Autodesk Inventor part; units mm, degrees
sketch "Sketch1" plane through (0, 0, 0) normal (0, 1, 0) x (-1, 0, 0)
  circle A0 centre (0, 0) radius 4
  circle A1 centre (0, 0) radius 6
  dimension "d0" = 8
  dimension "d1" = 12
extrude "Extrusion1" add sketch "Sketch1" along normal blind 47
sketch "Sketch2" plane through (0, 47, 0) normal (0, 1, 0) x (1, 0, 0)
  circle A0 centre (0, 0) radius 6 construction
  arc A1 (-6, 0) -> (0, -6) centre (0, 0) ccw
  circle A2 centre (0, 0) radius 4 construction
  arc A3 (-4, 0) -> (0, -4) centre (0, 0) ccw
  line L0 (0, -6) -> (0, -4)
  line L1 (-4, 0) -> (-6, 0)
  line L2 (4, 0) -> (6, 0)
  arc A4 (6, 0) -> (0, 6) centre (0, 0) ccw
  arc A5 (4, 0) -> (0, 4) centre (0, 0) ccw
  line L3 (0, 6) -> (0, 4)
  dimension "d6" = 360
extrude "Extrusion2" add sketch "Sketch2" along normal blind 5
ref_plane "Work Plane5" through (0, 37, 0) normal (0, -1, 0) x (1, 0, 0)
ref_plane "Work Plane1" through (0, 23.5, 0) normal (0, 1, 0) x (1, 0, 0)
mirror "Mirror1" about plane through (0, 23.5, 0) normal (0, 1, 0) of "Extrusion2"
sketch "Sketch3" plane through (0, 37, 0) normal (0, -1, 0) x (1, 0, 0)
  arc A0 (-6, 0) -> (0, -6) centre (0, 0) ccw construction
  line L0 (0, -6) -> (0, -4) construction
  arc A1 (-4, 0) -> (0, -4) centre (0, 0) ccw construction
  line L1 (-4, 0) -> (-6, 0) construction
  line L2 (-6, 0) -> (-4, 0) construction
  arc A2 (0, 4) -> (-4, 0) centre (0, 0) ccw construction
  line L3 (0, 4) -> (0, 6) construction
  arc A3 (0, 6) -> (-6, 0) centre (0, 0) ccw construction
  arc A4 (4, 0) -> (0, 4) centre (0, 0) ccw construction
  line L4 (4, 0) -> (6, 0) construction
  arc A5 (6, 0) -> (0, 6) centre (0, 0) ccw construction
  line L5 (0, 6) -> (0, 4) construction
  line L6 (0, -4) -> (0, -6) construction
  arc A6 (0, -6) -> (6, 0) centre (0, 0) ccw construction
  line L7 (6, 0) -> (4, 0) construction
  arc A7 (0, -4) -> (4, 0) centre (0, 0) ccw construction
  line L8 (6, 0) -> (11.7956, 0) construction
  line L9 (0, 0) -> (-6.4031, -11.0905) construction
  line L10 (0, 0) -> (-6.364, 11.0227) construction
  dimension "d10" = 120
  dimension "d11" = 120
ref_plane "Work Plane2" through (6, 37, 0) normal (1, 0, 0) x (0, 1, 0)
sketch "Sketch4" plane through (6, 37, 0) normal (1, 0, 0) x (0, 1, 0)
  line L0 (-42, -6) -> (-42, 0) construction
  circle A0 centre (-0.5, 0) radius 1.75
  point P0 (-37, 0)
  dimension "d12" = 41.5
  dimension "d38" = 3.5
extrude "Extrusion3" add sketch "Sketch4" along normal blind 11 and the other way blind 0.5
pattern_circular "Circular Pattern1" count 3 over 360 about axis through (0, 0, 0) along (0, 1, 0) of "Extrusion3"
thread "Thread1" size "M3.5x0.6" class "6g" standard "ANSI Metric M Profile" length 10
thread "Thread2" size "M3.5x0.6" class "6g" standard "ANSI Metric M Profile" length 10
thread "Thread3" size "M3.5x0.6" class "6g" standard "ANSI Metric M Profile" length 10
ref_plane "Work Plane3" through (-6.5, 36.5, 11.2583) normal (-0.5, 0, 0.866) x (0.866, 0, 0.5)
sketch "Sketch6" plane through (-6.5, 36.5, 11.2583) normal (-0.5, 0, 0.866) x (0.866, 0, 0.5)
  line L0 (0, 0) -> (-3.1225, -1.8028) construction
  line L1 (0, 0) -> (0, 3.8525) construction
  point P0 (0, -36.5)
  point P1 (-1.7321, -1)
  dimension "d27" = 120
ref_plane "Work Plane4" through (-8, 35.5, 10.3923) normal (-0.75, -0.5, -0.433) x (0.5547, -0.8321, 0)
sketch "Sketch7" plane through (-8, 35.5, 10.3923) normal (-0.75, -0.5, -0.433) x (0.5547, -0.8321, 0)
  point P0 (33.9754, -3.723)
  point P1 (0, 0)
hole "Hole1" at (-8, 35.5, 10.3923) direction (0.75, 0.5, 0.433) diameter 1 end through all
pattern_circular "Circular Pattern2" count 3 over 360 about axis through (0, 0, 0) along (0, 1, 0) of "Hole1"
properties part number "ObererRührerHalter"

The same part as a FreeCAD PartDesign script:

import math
import FreeCAD as App
import Part
import Sketcher

doc = App.newDocument("Part")
params = doc.addObject("Spreadsheet::Sheet", "Params")
for row, (alias, value) in enumerate([
    ("sketch1_diameter", "12 mm"),
    ("sketch1_diameter2", "8 mm"),
    ("pad1_length", "47 mm"),
    ("sketch2_radius", "6 mm"),
    ("sketch2_radius2", "4 mm"),
    ("pad2_length", "5 mm"),
    ("sketch3_diameter", "3.5 mm"),
    ("pad3_length", "11 mm"),
    ("pad3_length2", "0.5 mm"),
    ("sketch4_diameter", "1 mm"),
    ("hole_diameter", "1 mm"),
], start=1):
    params.set(f"A{row}", alias)
    params.set(f"B{row}", "=" + value)
    params.setAlias(f"B{row}", alias)

body = doc.addObject("PartDesign::Body", "Body")

sketch1 = body.newObject("Sketcher::SketchObject", "Sketch")
sketch1.AttachmentSupport = (doc.getObject("XZ_Plane"), [""])
sketch1.MapMode = "FlatFace"
sketch1.addGeometry([
    Part.Circle(App.Vector(0, 0, 0), App.Vector(0, 0, 1), 6),
    Part.Circle(App.Vector(0, 0, 0), App.Vector(0, 0, 1), 4),
], False)
sketch1.addConstraint([
    Sketcher.Constraint("Coincident", 0, 3, -1, 1),
    Sketcher.Constraint("Coincident", 1, 3, -1, 1),
    Sketcher.Constraint("Diameter", 0, 12.0),
    Sketcher.Constraint("Diameter", 1, 8.0),
])
sketch1.setExpression("Constraints[2]", "Params.sketch1_diameter")
sketch1.setExpression("Constraints[3]", "Params.sketch1_diameter2")
pad1 = body.newObject("PartDesign::Pad", "Pad")
pad1.Profile = sketch1
pad1.setExpression("Length", "Params.pad1_length")
pad1.Reversed = True

sketch2 = body.newObject("Sketcher::SketchObject", "Sketch001")
sketch2.AttachmentSupport = (doc.getObject("XZ_Plane"), [""])
sketch2.MapMode = "FlatFace"
sketch2.AttachmentOffset = App.Placement(App.Vector(0, 0, -47), App.Rotation())
sketch2.addGeometry([
    Part.LineSegment(App.Vector(-4, 0, 0), App.Vector(-6, 0, 0)),
    Part.ArcOfCircle(Part.Circle(App.Vector(0, 0, 0), App.Vector(0, 0, 1), 6), math.radians(90), math.radians(180)),
    Part.LineSegment(App.Vector(0, 6, 0), App.Vector(0, 4, 0)),
    Part.ArcOfCircle(Part.Circle(App.Vector(0, 0, 0), App.Vector(0, 0, 1), 4), math.radians(90), math.radians(180)),
    Part.ArcOfCircle(Part.Circle(App.Vector(0, 0, 0), App.Vector(0, 0, 1), 4), math.radians(-90), math.radians(0)),
    Part.LineSegment(App.Vector(4, 0, 0), App.Vector(6, 0, 0)),
    Part.ArcOfCircle(Part.Circle(App.Vector(0, 0, 0), App.Vector(0, 0, 1), 6), math.radians(-90), math.radians(0)),
    Part.LineSegment(App.Vector(0, -6, 0), App.Vector(0, -4, 0)),
], False)
sketch2.addConstraint([
    Sketcher.Constraint("Coincident", 0, 2, 1, 2),
    Sketcher.Constraint("Coincident", 1, 1, 2, 1),
    Sketcher.Constraint("Coincident", 2, 2, 3, 1),
    Sketcher.Constraint("Coincident", 3, 2, 0, 1),
    Sketcher.Constraint("Coincident", 4, 2, 5, 1),
    Sketcher.Constraint("Coincident", 5, 2, 6, 2),
    Sketcher.Constraint("Coincident", 6, 1, 7, 1),
    Sketcher.Constraint("Coincident", 7, 2, 4, 1),
    Sketcher.Constraint("Horizontal", 0),
    Sketcher.Constraint("Vertical", 2),
    Sketcher.Constraint("Horizontal", 5),
    Sketcher.Constraint("Vertical", 7),
    Sketcher.Constraint("Coincident", 1, 3, -1, 1),
    Sketcher.Constraint("Coincident", 3, 3, -1, 1),
    Sketcher.Constraint("Coincident", 4, 3, -1, 1),
    Sketcher.Constraint("Coincident", 6, 3, -1, 1),
    Sketcher.Constraint("Equal", 3, 4),
    Sketcher.Constraint("Equal", 1, 6),
    Sketcher.Constraint("PointOnObject", 0, 2, -1),
    Sketcher.Constraint("PointOnObject", 1, 1, -2),
    Sketcher.Constraint("PointOnObject", 4, 2, -1),
    Sketcher.Constraint("PointOnObject", 6, 1, -2),
    Sketcher.Constraint("Radius", 1, 6.0),
    Sketcher.Constraint("Radius", 3, 4.0),
])
sketch2.setExpression("Constraints[22]", "Params.sketch2_radius")
sketch2.setExpression("Constraints[23]", "Params.sketch2_radius2")
pad2 = body.newObject("PartDesign::Pad", "Pad001")
pad2.Profile = sketch2
pad2.setExpression("Length", "Params.pad2_length")
pad2.Reversed = True
doc.recompute()

datumplane = body.newObject("PartDesign::Plane", "DatumPlane")
datumplane.AttachmentSupport = (doc.getObject("XZ_Plane"), [""])
datumplane.MapMode = "FlatFace"
datumplane.AttachmentOffset = App.Placement(App.Vector(0, 0, -23.5), App.Rotation())
mirrored = body.newObject("PartDesign::Mirrored", "Mirrored")
mirrored.Originals = [pad2]
mirrored.MirrorPlane = (datumplane, [""])
body.Tip = mirrored

sketch3 = body.newObject("Sketcher::SketchObject", "Sketch002")
sketch3.AttachmentSupport = (doc.getObject("YZ_Plane"), [""])
sketch3.MapMode = "FlatFace"
sketch3.AttachmentOffset = App.Placement(App.Vector(0, 0, 6), App.Rotation())
sketch3.addGeometry(Part.Circle(App.Vector(36.5, 0, 0), App.Vector(0, 0, 1), 1.8), False)
sketch3.addConstraint([
    Sketcher.Constraint("PointOnObject", 0, 3, -1),
    Sketcher.Constraint("Diameter", 0, 3.5),
    Sketcher.Constraint("DistanceX", -1, 1, 0, 3, 36.5),
])
sketch3.setExpression("Constraints[1]", "Params.sketch3_diameter")
pad3 = body.newObject("PartDesign::Pad", "Pad002")
pad3.Profile = sketch3
pad3.Type = "TwoLengths"
pad3.setExpression("Length", "Params.pad3_length")
pad3.setExpression("Length2", "Params.pad3_length2")
doc.recompute()

polarpattern = body.newObject("PartDesign::PolarPattern", "PolarPattern")
polarpattern.Originals = [pad3]
polarpattern.Axis = (doc.getObject("Y_Axis"), [""])
polarpattern.Angle = 360
polarpattern.Occurrences = 3
body.Tip = polarpattern

sketch4 = body.newObject("Sketcher::SketchObject", "Sketch003")
sketch4.Placement = App.Placement(App.Vector(12.187533, 8.125022, 7.036269), App.Rotation(App.Vector(0.554700196, -0.832050294, 0), App.Vector(-0.360279759, -0.240186506, 0.901392776), App.Vector(-0.750004125, -0.50000275, -0.433002382), "ZXY"))
sketch4.addGeometry(Part.Circle(App.Vector(-34, 3.7, 0), App.Vector(0, 0, 1), 0.5), False)
sketch4.addConstraint([
    Sketcher.Constraint("Diameter", 0, 1.0),
    Sketcher.Constraint("DistanceX", 0, 3, -1, 1, 33.9754),
    Sketcher.Constraint("DistanceY", -1, 1, 0, 3, 3.7232),
])
sketch4.setExpression("Constraints[0]", "Params.sketch4_diameter")
doc.recompute()
hole = body.newObject("PartDesign::Hole", "Hole")
hole.Profile = sketch4
hole.ThreadType = "None"
hole.setExpression("Diameter", "Params.hole_diameter")
hole.DepthType = "ThroughAll"
doc.recompute()

polarpattern2 = body.newObject("PartDesign::PolarPattern", "PolarPattern001")
polarpattern2.Originals = [hole]
polarpattern2.Axis = (doc.getObject("Y_Axis"), [""])
polarpattern2.Angle = 360
polarpattern2.Occurrences = 3
body.Tip = polarpattern2

doc.recompute()
